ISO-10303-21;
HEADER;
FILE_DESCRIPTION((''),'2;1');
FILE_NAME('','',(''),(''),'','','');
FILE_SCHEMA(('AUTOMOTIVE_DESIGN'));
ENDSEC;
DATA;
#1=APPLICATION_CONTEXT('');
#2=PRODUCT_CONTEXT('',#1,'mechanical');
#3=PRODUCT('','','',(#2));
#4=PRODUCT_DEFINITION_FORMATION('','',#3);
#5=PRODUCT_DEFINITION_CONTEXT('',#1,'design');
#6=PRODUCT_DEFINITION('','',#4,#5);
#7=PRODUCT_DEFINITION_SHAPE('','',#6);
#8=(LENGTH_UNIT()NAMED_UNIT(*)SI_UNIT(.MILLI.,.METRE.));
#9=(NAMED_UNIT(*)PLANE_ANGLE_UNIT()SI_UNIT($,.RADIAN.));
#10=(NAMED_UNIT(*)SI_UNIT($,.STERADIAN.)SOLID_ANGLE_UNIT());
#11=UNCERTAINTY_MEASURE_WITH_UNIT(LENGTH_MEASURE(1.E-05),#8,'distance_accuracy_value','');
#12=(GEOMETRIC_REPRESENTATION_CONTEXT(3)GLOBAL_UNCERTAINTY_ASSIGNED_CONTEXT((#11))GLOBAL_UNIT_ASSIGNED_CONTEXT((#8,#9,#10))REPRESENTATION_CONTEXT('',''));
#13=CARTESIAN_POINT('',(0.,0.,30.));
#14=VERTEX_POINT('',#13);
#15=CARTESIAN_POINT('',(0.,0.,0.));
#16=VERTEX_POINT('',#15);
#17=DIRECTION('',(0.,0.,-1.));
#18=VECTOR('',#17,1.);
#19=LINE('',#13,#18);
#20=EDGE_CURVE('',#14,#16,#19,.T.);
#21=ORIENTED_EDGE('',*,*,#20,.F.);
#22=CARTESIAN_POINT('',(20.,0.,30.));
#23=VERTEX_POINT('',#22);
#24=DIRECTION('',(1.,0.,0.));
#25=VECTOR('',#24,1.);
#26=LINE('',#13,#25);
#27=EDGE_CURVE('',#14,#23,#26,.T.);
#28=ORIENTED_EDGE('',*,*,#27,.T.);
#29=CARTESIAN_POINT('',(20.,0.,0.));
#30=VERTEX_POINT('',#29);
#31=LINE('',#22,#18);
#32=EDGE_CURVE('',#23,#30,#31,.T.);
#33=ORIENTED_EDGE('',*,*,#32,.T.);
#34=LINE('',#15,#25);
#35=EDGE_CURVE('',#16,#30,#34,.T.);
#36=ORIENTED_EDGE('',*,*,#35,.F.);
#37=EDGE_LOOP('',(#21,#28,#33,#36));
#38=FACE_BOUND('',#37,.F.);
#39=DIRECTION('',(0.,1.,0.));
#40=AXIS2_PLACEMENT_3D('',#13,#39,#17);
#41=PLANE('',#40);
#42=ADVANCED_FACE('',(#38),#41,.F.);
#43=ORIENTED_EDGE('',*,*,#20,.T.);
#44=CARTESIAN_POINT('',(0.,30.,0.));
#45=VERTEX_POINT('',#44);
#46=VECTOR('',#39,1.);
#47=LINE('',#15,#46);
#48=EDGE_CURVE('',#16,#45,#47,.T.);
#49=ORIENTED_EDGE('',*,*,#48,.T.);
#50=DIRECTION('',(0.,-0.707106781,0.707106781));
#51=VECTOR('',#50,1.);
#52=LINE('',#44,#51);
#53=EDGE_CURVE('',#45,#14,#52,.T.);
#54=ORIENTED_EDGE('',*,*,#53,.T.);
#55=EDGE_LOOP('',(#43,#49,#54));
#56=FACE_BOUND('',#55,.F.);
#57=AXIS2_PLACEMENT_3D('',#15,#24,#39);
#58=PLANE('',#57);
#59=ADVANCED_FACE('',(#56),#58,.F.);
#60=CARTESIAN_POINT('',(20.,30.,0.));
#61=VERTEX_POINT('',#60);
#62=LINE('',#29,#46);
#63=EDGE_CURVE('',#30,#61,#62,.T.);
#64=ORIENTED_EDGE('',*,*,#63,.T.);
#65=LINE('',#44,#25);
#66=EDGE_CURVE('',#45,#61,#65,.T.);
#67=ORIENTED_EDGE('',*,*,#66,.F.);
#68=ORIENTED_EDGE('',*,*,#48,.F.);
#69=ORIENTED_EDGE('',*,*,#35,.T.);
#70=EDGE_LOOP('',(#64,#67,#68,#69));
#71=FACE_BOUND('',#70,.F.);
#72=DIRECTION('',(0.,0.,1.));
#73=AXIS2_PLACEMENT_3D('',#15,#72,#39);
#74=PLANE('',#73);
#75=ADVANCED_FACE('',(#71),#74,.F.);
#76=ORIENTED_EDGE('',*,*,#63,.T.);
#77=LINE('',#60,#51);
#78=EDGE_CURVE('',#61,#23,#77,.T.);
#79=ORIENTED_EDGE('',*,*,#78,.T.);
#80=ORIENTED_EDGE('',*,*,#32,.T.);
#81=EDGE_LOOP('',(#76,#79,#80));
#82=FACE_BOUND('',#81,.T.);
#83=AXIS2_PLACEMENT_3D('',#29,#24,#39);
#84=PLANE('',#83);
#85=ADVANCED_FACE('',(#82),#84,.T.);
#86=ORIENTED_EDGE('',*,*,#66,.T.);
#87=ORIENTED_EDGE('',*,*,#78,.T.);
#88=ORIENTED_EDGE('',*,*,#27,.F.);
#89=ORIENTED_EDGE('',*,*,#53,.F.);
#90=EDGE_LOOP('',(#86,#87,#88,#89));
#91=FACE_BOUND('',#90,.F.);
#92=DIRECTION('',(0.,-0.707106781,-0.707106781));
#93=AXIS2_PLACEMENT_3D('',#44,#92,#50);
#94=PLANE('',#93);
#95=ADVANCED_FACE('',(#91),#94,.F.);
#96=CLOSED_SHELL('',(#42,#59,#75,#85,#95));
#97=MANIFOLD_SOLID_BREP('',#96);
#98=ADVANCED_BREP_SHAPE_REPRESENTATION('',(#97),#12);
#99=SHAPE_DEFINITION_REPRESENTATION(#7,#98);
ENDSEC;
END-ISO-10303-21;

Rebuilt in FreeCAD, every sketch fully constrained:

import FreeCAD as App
import Part
import Sketcher

V = App.Vector


def add_polygon(sketch, points):
    """Adds a closed chain of lines whose ends are joined by coincident constraints."""
    first, n = sketch.GeometryCount, len(points)
    for a, b in zip(points, points[1:] + points[:1]):
        sketch.addGeometry(Part.LineSegment(App.Vector(*a, 0), App.Vector(*b, 0)), False)
    for i in range(n):
        sketch.addConstraint(Sketcher.Constraint("Coincident", first + i, 2, first + (i + 1) % n, 1))

doc = App.newDocument("Part")
params = doc.addObject("Spreadsheet::Sheet", "Params")
for row, (alias, value) in enumerate([
    ("sketch1_width", "30 mm"),
    ("pad1_length", "20 mm"),
], start=1):
    params.set(f"A{row}", alias)
    params.set(f"B{row}", "=" + value)
    params.setAlias(f"B{row}", alias)

body = doc.addObject("PartDesign::Body", "Body")

sketch1 = doc.addObject("Sketcher::SketchObject", "Sketch")
body.addObject(sketch1)
sketch1.AttachmentSupport = (doc.YZ_Plane, [""])
sketch1.MapMode = "FlatFace"
add_polygon(sketch1, [(0, 30), (0, 0), (30, 0)])
sketch1.addConstraint(Sketcher.Constraint("Vertical", 0))
sketch1.addConstraint(Sketcher.Constraint("Horizontal", 1))
sketch1.addConstraint(Sketcher.Constraint("Coincident", 0, 2, -1, 1))
sketch1.addConstraint(Sketcher.Constraint("Equal", 1, 0))
sketch1.addConstraint(Sketcher.Constraint("DistanceX", 1, 1, 1, 2, 30.0))
sketch1.setExpression("Constraints[7]", "Params.sketch1_width")
pad1 = doc.addObject("PartDesign::Pad", "Pad")
body.addObject(pad1)
pad1.Profile = sketch1
pad1.setExpression("Length", "Params.pad1_length")

doc.recompute()
